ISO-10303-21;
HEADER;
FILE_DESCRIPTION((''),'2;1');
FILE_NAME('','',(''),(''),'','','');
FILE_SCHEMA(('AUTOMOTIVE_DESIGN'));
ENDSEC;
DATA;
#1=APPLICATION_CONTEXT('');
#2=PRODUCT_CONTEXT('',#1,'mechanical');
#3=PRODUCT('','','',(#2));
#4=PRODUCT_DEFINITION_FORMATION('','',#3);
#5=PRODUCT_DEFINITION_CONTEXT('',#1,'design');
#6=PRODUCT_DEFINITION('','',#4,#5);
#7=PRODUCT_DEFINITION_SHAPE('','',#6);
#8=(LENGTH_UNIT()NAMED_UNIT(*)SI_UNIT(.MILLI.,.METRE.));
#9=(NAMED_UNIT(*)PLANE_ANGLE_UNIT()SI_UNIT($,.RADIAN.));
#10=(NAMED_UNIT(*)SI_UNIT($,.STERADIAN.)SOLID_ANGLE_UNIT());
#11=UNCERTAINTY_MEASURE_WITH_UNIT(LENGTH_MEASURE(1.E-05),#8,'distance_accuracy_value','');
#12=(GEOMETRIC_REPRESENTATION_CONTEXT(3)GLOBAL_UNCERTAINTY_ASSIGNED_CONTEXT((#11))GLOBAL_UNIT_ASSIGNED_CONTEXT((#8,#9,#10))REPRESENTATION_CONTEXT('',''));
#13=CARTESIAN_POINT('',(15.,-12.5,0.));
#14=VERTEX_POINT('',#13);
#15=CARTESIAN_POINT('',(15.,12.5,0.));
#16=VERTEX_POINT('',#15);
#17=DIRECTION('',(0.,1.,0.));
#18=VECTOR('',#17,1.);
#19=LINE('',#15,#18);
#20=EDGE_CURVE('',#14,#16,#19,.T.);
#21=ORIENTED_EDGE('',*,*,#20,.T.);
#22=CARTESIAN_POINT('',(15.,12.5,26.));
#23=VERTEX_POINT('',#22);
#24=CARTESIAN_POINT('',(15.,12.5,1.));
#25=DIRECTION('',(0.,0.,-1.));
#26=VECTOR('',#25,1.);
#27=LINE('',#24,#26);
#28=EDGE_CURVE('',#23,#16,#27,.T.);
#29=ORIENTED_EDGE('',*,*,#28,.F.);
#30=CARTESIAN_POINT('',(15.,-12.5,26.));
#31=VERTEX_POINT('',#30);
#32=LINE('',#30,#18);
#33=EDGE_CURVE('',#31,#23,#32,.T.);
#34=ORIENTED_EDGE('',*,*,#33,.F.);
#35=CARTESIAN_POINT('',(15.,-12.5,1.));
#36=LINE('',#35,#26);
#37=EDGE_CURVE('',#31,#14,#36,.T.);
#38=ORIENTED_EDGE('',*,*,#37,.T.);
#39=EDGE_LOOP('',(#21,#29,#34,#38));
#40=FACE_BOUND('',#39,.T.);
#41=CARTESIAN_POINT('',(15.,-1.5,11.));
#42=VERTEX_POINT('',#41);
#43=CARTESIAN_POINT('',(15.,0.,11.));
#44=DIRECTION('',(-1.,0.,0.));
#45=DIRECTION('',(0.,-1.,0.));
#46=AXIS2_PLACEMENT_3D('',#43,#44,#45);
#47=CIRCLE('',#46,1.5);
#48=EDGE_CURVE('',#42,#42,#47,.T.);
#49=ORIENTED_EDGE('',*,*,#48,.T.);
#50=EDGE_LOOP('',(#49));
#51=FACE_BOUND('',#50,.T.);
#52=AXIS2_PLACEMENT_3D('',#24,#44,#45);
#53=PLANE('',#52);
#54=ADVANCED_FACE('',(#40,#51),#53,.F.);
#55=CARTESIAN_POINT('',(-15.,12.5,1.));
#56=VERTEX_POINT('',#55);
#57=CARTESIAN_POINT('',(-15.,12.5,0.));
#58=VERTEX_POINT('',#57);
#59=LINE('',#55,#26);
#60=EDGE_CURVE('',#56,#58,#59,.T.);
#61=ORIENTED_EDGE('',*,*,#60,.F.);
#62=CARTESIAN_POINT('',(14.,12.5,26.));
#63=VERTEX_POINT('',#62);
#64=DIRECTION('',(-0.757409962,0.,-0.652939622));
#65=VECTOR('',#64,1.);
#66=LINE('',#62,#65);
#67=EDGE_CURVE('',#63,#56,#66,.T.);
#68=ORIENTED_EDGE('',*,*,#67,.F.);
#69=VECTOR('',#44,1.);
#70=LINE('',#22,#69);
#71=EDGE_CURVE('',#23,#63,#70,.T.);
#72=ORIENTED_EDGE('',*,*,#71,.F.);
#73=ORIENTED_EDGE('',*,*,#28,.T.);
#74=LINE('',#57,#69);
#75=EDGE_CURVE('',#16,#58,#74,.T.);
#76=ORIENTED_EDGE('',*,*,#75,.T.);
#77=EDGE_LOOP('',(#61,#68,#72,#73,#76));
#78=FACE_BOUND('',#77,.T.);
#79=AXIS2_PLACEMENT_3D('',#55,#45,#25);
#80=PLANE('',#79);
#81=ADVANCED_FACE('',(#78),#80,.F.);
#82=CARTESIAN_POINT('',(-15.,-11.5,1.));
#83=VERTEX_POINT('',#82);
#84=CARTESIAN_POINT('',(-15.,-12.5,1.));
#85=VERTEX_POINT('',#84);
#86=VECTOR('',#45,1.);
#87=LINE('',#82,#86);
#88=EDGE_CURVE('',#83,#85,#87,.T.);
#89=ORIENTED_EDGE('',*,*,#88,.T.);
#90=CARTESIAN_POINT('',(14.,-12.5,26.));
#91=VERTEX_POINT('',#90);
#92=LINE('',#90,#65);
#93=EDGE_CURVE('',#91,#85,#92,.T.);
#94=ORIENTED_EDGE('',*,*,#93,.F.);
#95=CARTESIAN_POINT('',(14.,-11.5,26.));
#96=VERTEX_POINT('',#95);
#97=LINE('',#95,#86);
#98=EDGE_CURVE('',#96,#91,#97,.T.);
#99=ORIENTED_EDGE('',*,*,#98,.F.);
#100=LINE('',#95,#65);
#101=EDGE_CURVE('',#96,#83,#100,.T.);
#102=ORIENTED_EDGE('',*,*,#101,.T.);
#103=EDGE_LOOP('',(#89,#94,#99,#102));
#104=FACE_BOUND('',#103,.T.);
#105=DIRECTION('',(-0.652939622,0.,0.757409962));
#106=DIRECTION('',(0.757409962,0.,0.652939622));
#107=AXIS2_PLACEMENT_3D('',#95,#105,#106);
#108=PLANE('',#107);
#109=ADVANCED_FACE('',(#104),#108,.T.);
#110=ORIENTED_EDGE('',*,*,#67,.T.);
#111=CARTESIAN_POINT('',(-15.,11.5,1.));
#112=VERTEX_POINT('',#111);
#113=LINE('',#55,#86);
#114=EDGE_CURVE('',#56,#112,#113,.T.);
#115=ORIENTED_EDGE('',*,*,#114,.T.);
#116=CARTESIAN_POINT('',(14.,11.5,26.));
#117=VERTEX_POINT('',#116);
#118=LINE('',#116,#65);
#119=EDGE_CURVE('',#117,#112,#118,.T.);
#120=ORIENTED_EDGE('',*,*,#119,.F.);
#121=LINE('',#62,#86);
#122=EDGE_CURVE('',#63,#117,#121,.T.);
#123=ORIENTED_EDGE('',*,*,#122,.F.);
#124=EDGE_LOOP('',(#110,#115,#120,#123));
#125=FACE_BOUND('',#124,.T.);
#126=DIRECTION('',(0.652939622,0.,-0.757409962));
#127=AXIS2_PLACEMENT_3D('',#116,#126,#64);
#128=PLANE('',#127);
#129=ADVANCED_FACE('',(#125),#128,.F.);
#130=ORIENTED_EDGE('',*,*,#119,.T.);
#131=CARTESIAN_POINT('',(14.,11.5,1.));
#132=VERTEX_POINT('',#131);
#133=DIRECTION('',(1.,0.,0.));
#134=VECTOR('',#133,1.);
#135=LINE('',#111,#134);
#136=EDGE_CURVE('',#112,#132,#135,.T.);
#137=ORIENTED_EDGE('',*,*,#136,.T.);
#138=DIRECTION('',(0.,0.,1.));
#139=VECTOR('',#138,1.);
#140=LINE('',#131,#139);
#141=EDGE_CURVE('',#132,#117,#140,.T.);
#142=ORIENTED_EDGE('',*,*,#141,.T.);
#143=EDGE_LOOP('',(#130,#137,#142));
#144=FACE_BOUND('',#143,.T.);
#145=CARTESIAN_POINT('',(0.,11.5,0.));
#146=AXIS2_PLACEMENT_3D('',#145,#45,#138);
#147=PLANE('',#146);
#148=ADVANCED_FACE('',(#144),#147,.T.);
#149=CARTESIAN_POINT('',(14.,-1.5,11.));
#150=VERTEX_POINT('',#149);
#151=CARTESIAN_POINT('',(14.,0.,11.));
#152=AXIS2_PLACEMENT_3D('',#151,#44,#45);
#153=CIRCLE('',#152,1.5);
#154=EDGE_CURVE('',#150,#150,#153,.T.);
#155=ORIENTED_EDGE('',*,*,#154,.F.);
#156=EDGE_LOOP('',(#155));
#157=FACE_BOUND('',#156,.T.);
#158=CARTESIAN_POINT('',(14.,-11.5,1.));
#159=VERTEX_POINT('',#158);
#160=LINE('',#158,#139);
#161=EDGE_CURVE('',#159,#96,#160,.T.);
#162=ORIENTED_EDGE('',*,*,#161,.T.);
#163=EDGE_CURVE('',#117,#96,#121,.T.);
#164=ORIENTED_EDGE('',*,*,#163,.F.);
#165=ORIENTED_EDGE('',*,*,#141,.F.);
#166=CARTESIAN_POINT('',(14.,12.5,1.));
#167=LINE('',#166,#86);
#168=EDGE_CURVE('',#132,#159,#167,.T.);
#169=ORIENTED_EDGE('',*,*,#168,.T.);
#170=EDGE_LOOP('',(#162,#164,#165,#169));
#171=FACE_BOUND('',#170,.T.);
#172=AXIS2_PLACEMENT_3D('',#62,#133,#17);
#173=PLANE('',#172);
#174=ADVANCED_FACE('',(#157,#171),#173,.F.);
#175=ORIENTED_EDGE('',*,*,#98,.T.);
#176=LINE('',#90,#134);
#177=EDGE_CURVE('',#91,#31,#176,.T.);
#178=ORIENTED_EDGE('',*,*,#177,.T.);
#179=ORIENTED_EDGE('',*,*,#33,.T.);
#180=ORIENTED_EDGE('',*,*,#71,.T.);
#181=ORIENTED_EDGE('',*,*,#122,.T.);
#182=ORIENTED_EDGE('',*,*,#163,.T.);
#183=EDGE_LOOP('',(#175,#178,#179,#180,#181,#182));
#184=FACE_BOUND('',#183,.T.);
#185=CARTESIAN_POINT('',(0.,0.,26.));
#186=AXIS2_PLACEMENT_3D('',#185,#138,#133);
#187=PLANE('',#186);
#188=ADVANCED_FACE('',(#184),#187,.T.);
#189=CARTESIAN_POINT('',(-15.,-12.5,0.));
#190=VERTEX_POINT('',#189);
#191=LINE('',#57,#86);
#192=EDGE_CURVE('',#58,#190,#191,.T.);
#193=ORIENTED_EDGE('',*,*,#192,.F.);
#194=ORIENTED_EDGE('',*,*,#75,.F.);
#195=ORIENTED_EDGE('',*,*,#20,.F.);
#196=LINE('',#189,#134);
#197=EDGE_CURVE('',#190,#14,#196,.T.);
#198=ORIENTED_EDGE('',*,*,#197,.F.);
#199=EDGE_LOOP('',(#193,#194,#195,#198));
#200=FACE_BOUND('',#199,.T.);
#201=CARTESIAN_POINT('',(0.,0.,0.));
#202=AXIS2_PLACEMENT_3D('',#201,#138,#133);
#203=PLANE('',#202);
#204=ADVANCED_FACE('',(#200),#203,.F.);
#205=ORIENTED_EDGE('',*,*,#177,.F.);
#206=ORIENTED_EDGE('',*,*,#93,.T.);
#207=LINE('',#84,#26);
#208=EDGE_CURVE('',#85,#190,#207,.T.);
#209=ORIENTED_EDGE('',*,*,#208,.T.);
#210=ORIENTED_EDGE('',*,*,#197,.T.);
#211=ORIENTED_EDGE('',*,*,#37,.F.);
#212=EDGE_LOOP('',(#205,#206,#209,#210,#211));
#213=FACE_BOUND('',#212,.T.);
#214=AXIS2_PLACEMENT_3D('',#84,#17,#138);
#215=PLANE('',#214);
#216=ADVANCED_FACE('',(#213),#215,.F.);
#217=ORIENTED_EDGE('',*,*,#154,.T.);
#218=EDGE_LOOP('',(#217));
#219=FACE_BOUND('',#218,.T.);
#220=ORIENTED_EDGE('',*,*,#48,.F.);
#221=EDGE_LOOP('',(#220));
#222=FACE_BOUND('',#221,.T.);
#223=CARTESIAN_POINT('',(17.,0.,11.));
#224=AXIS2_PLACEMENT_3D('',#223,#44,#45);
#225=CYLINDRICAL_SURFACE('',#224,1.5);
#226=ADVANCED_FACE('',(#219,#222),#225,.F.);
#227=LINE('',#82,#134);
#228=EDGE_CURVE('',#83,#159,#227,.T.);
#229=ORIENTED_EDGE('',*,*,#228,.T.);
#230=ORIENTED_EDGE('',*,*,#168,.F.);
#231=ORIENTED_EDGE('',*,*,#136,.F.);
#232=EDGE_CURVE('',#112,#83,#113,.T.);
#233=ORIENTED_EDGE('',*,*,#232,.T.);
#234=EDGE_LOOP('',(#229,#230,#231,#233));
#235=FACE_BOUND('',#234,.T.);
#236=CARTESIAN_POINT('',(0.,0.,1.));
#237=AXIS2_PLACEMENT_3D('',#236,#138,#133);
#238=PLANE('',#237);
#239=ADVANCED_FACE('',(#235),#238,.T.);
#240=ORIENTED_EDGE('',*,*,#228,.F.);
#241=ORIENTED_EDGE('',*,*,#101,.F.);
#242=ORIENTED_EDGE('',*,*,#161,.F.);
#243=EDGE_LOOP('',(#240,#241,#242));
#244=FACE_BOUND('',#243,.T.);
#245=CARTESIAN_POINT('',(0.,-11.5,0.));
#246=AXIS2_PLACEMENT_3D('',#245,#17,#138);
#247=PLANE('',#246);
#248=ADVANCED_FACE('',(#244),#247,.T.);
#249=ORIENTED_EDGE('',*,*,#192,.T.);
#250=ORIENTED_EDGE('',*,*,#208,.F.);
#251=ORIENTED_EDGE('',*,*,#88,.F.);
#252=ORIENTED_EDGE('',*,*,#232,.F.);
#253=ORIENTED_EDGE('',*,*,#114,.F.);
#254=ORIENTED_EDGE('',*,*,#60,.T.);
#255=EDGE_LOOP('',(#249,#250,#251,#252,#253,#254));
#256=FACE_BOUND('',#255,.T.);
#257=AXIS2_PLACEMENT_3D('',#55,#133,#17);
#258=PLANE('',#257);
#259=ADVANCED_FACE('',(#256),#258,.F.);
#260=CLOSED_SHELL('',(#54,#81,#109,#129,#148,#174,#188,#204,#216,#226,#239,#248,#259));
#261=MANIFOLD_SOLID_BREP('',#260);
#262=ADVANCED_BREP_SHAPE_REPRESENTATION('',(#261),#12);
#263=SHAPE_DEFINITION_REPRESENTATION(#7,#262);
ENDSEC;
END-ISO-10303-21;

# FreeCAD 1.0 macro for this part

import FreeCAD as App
import Part
import Sketcher


def add_polygon(sketch, points):
    """Adds a closed chain of lines whose ends are joined by coincident constraints."""
    first, n = sketch.GeometryCount, len(points)
    for a, b in zip(points, points[1:] + points[:1]):
        sketch.addGeometry(Part.LineSegment(App.Vector(*a, 0), App.Vector(*b, 0)), False)
    for i in range(n):
        sketch.addConstraint(Sketcher.Constraint("Coincident", first + i, 2, first + (i + 1) % n, 1))

doc = App.newDocument("Part")
params = doc.addObject("Spreadsheet::Sheet", "Params")
for row, (alias, value) in enumerate([
    ("sketch1_width", "30 mm"),
    ("sketch1_height", "25 mm"),
    ("pad1_length", "1 mm"),
    ("sketch2_width", "1 mm"),
    ("sketch2_height", "25 mm"),
    ("pad2_length", "25 mm"),
    ("sketch3_width", "29 mm"),
    ("sketch3_height", "25 mm"),
    ("pad3_length", "1 mm"),
    ("sketch4_diameter", "3 mm"),
    ("pocket1_length", "3 mm"),
], start=1):
    params.set(f"A{row}", alias)
    params.set(f"B{row}", "=" + value)
    params.setAlias(f"B{row}", alias)

body = doc.addObject("PartDesign::Body", "Body")

sketch1 = doc.addObject("Sketcher::SketchObject", "Sketch")
body.addObject(sketch1)
sketch1.AttachmentSupport = (doc.XY_Plane, [""])
sketch1.MapMode = "FlatFace"
add_polygon(sketch1, [(-15, 12), (-15, -12), (15, -12), (15, 12)])
sketch1.addConstraint([
    Sketcher.Constraint("Vertical", 0),
    Sketcher.Constraint("Horizontal", 1),
    Sketcher.Constraint("Vertical", 2),
    Sketcher.Constraint("Horizontal", 3),
    Sketcher.Constraint("Symmetric", 0, 2, 2, 2, -1, 1),
    Sketcher.Constraint("DistanceX", 1, 1, 1, 2, 30.0),
    Sketcher.Constraint("DistanceY", 0, 2, 0, 1, 25.0),
])
sketch1.setExpression("Constraints[9]", "Params.sketch1_width")
sketch1.setExpression("Constraints[10]", "Params.sketch1_height")
pad1 = doc.addObject("PartDesign::Pad", "Pad")
body.addObject(pad1)
pad1.Profile = sketch1
pad1.setExpression("Length", "Params.pad1_length")

sketch2 = doc.addObject("Sketcher::SketchObject", "Sketch001")
body.addObject(sketch2)
sketch2.AttachmentSupport = (doc.XY_Plane, [""])
sketch2.MapMode = "FlatFace"
sketch2.AttachmentOffset = App.Placement(App.Vector(0, 0, 1), App.Rotation())
add_polygon(sketch2, [(14, 12.5), (14, -12.5), (15, -12.5), (15, 12.5)])
sketch2.addConstraint([
    Sketcher.Constraint("Vertical", 0),
    Sketcher.Constraint("Horizontal", 1),
    Sketcher.Constraint("Vertical", 2),
    Sketcher.Constraint("Horizontal", 3),
    Sketcher.Constraint("DistanceX", 1, 1, 1, 2, 1.0),
    Sketcher.Constraint("DistanceY", 0, 2, 0, 1, 25.0),
    Sketcher.Constraint("DistanceX", -1, 1, 0, 2, 14.0),
    Sketcher.Constraint("DistanceY", 0, 2, -1, 1, 12.5),
])
sketch2.setExpression("Constraints[8]", "Params.sketch2_width")
sketch2.setExpression("Constraints[9]", "Params.sketch2_height")
pad2 = doc.addObject("PartDesign::Pad", "Pad001")
body.addObject(pad2)
pad2.Profile = sketch2
pad2.setExpression("Length", "Params.pad2_length")

sketch3 = doc.addObject("Sketcher::SketchObject", "Sketch002")
body.addObject(sketch3)
sketch3.AttachmentSupport = (doc.XZ_Plane, [""])
sketch3.MapMode = "FlatFace"
sketch3.AttachmentOffset = App.Placement(App.Vector(0, 0, 12.5), App.Rotation())
add_polygon(sketch3, [(14, 26), (-15, 1), (14, 1)])
sketch3.addConstraint([
    Sketcher.Constraint("Horizontal", 1),
    Sketcher.Constraint("Vertical", 2),
    Sketcher.Constraint("DistanceX", 1, 1, 1, 2, 29.0),
    Sketcher.Constraint("DistanceY", 2, 1, 2, 2, 25.0),
    Sketcher.Constraint("DistanceX", 0, 2, -1, 1, 15.0),
    Sketcher.Constraint("DistanceY", -1, 1, 0, 2, 1.0),
])
sketch3.setExpression("Constraints[5]", "Params.sketch3_width")
sketch3.setExpression("Constraints[6]", "Params.sketch3_height")
pad3 = doc.addObject("PartDesign::Pad", "Pad002")
body.addObject(pad3)
pad3.Profile = sketch3
pad3.setExpression("Length", "Params.pad3_length")
pad3.Reversed = True
doc.recompute()

mirrored = doc.addObject("PartDesign::Mirrored", "Mirrored")
body.addObject(mirrored)
mirrored.Originals = [pad3]
mirrored.MirrorPlane = (doc.XZ_Plane, [""])
body.Tip = mirrored

sketch4 = doc.addObject("Sketcher::SketchObject", "Sketch003")
body.addObject(sketch4)
sketch4.AttachmentSupport = (doc.YZ_Plane, [""])
sketch4.MapMode = "FlatFace"
sketch4.AttachmentOffset = App.Placement(App.Vector(0, 0, 14), App.Rotation())
sketch4.addGeometry(Part.Circle(App.Vector(0, 11, 0), App.Vector(0, 0, 1), 1.5), False)
sketch4.addConstraint([
    Sketcher.Constraint("PointOnObject", 0, 3, -2),
    Sketcher.Constraint("Diameter", 0, 3.0),
    Sketcher.Constraint("DistanceY", -1, 1, 0, 3, 11.0),
])
sketch4.setExpression("Constraints[1]", "Params.sketch4_diameter")
pocket1 = doc.addObject("PartDesign::Pocket", "Pocket")
body.addObject(pocket1)
pocket1.Profile = sketch4
pocket1.setExpression("Length", "Params.pocket1_length")
pocket1.Reversed = True

doc.recompute()
